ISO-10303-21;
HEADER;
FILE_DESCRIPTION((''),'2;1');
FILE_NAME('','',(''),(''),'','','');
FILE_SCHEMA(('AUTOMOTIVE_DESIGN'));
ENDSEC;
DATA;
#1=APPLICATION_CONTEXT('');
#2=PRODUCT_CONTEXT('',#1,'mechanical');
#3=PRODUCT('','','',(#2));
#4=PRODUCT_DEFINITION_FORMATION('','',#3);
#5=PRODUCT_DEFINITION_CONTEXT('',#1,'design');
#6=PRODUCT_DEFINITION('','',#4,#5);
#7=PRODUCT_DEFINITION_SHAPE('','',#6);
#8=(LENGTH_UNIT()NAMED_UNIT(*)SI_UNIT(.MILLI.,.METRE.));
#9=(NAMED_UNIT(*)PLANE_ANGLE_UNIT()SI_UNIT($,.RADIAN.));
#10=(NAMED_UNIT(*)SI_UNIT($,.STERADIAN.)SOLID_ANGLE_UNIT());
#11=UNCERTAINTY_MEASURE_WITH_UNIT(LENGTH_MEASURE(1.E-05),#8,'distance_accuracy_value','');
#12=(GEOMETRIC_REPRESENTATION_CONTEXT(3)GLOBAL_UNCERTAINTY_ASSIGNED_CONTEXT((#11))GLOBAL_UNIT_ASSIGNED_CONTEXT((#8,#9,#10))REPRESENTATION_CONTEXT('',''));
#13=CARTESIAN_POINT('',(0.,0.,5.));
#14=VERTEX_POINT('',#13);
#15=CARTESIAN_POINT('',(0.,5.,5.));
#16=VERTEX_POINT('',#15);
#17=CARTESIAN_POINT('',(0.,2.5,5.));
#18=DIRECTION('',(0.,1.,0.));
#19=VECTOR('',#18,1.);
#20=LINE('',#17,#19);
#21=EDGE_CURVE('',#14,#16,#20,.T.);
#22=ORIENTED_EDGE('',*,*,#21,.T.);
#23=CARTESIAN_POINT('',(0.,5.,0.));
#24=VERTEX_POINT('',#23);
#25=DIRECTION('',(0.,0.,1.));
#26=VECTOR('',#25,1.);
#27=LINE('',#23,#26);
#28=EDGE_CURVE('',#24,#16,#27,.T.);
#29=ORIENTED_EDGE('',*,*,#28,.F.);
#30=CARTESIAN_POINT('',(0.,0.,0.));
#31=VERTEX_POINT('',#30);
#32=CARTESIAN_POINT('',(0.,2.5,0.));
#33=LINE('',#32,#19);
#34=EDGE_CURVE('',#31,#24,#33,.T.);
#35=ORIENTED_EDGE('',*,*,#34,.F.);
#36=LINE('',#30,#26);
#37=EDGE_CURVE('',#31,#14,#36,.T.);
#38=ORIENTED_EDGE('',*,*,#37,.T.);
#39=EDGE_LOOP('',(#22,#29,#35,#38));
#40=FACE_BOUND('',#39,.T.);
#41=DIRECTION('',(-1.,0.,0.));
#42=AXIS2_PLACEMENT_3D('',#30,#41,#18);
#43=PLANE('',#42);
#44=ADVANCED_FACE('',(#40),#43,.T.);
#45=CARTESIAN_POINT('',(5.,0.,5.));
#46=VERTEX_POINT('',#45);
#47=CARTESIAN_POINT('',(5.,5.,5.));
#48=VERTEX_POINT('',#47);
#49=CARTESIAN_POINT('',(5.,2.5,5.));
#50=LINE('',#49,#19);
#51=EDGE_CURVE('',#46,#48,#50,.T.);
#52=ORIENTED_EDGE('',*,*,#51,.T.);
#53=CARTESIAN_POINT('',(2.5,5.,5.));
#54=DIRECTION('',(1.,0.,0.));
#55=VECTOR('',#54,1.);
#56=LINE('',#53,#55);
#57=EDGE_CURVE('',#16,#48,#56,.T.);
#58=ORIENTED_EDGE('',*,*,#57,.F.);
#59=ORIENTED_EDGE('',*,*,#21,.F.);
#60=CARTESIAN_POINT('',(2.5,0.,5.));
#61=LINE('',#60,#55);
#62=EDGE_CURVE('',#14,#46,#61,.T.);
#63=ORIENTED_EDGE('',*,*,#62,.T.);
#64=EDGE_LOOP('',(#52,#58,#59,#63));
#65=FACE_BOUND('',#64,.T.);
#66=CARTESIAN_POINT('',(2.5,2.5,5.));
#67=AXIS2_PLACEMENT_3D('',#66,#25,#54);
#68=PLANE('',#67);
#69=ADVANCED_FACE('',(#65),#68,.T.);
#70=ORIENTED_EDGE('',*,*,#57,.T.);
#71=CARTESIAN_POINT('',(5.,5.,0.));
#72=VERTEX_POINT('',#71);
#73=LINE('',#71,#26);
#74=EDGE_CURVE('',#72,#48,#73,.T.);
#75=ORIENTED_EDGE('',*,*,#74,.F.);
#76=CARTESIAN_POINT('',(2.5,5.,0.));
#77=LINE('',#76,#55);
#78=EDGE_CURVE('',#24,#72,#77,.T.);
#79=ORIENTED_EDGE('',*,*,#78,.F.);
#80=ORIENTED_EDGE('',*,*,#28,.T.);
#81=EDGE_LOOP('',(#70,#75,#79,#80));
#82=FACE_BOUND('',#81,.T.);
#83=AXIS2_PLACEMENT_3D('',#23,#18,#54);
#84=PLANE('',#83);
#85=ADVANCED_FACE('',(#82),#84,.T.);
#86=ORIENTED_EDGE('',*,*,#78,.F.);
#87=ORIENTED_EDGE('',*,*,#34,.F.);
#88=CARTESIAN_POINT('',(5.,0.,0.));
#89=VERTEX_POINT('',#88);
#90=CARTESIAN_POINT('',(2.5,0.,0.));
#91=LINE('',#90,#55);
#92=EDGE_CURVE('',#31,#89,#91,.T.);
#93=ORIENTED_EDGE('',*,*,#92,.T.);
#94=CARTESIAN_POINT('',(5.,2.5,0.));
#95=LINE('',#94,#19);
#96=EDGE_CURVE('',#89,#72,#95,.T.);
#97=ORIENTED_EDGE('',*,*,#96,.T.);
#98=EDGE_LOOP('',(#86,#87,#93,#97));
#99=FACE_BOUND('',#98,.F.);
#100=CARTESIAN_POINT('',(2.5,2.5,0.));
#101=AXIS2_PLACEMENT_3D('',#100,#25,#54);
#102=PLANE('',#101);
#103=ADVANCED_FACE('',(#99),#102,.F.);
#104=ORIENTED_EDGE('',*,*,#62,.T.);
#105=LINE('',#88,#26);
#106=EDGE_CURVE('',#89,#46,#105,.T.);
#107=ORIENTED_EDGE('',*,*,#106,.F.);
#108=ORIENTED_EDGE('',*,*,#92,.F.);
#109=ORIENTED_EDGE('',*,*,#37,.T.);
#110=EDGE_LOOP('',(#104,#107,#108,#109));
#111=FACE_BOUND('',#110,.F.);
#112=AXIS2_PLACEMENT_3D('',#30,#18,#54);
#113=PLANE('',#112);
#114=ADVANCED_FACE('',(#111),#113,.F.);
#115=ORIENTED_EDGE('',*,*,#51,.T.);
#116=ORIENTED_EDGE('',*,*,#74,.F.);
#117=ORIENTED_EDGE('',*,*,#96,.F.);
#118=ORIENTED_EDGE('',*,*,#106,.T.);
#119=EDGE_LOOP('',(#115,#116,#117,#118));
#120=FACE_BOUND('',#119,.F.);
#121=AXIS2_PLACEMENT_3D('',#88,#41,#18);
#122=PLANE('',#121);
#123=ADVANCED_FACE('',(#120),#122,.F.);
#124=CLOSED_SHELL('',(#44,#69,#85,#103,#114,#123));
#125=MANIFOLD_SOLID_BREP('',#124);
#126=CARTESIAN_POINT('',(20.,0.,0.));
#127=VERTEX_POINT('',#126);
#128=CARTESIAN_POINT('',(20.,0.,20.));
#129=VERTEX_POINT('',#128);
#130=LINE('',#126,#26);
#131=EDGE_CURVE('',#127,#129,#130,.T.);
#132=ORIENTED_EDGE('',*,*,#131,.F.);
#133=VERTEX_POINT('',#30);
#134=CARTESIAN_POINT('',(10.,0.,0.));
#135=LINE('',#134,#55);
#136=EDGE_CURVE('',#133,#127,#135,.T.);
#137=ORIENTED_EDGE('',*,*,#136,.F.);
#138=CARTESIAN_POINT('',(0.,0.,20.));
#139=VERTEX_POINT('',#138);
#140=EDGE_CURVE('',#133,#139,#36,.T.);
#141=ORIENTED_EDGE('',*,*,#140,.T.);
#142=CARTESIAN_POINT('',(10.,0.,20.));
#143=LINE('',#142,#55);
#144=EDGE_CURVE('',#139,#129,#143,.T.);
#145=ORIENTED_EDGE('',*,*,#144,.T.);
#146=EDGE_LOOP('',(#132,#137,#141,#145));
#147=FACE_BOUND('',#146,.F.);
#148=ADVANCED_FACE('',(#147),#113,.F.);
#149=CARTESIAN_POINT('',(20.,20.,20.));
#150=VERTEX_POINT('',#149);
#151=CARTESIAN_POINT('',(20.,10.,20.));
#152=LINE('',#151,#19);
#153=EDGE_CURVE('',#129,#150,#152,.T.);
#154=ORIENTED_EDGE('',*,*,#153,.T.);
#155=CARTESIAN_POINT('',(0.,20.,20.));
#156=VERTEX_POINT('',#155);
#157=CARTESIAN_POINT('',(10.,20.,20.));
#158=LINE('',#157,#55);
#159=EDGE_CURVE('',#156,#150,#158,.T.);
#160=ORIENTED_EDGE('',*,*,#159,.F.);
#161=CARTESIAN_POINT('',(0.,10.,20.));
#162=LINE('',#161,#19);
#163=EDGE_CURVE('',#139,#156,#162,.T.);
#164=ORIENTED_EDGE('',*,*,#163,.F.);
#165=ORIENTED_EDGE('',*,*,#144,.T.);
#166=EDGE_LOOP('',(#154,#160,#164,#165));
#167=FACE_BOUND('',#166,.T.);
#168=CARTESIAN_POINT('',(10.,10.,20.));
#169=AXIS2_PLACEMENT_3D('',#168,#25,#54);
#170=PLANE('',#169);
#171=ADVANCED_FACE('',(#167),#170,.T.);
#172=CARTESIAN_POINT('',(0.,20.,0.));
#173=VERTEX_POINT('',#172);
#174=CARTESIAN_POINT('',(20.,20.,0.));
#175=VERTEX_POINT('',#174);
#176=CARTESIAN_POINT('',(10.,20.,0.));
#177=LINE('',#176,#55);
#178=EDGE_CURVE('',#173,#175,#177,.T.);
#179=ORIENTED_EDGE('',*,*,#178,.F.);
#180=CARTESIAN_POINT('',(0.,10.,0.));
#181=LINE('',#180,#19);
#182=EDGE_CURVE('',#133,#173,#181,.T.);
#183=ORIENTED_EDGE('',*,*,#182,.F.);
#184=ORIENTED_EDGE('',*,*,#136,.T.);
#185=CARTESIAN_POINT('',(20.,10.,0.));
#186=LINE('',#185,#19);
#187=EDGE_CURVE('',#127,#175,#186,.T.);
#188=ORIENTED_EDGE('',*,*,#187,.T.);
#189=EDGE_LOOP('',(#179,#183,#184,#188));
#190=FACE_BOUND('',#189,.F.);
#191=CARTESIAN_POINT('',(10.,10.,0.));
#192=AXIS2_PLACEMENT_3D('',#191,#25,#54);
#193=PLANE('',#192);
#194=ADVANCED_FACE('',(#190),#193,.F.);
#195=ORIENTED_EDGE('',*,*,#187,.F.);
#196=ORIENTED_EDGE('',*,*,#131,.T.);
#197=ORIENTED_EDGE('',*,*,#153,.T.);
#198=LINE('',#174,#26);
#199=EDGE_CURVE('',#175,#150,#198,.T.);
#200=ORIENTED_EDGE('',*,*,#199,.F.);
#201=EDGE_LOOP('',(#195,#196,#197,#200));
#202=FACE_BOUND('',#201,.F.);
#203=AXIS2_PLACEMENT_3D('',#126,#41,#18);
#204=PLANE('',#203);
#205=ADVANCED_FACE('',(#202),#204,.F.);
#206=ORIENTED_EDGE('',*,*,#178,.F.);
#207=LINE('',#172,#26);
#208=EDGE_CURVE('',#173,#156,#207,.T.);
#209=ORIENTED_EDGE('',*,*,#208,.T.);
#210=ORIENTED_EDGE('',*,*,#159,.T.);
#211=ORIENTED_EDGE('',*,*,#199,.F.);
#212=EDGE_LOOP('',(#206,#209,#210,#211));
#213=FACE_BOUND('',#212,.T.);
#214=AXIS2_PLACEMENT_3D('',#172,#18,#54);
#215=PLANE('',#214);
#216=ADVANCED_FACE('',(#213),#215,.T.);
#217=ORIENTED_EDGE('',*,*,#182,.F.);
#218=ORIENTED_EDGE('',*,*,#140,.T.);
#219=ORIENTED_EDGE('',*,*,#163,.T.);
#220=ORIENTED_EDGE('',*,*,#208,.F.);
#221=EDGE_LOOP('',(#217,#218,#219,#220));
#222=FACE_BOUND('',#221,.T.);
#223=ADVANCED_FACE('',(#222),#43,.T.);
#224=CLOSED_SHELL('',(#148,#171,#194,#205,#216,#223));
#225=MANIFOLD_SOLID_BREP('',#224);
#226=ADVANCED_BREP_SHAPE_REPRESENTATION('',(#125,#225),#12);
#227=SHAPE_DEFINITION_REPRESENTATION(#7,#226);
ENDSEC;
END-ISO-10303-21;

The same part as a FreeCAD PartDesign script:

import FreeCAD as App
import Part
import Sketcher

doc = App.newDocument("Part")
body = doc.addObject("PartDesign::Body", "Body")

# Sketch on XY plane
sketch1 = body.newObject("Sketcher::SketchObject", "Sketch")
sketch1.AttachmentSupport = (doc.getObject("XY_Plane"), [""])
sketch1.MapMode = "FlatFace"
sketch1.addGeometry([
    Part.LineSegment(App.Vector(0, 20, 0), App.Vector(0, 0, 0)),
    Part.LineSegment(App.Vector(0, 0, 0), App.Vector(20, 0, 0)),
    Part.LineSegment(App.Vector(20, 0, 0), App.Vector(20, 20, 0)),
    Part.LineSegment(App.Vector(20, 20, 0), App.Vector(0, 20, 0)),
], False)
sketch1.addConstraint([
    Sketcher.Constraint("Coincident", 0, 2, 1, 1),
    Sketcher.Constraint("Coincident", 1, 2, 2, 1),
    Sketcher.Constraint("Coincident", 2, 2, 3, 1),
    Sketcher.Constraint("Coincident", 3, 2, 0, 1),
    Sketcher.Constraint("Vertical", 0),
    Sketcher.Constraint("Horizontal", 1),
    Sketcher.Constraint("Vertical", 2),
    Sketcher.Constraint("Horizontal", 3),
    Sketcher.Constraint("Coincident", 0, 2, -1, 1),
    Sketcher.Constraint("Equal", 3, 0),
    Sketcher.Constraint("DistanceX", 1, 1, 1, 2, 20.0),
])
pad1 = body.newObject("PartDesign::Pad", "Pad")
pad1.Profile = sketch1
pad1.Length = 20
body2 = doc.addObject("PartDesign::Body", "Body001")

# Sketch on XY plane
sketch2 = body2.newObject("Sketcher::SketchObject", "Sketch001")
sketch2.AttachmentSupport = (doc.getObject("XY_Plane001"), [""])
sketch2.MapMode = "FlatFace"
sketch2.addGeometry([
    Part.LineSegment(App.Vector(0, 5, 0), App.Vector(0, 0, 0)),
    Part.LineSegment(App.Vector(0, 0, 0), App.Vector(5, 0, 0)),
    Part.LineSegment(App.Vector(5, 0, 0), App.Vector(5, 5, 0)),
    Part.LineSegment(App.Vector(5, 5, 0), App.Vector(0, 5, 0)),
], False)
sketch2.addConstraint([
    Sketcher.Constraint("Coincident", 0, 2, 1, 1),
    Sketcher.Constraint("Coincident", 1, 2, 2, 1),
    Sketcher.Constraint("Coincident", 2, 2, 3, 1),
    Sketcher.Constraint("Coincident", 3, 2, 0, 1),
    Sketcher.Constraint("Vertical", 0),
    Sketcher.Constraint("Horizontal", 1),
    Sketcher.Constraint("Vertical", 2),
    Sketcher.Constraint("Horizontal", 3),
    Sketcher.Constraint("Coincident", 0, 2, -1, 1),
    Sketcher.Constraint("Equal", 3, 0),
    Sketcher.Constraint("DistanceX", 1, 1, 1, 2, 5.0),
])
pad2 = body2.newObject("PartDesign::Pad", "Pad001")
pad2.Profile = sketch2
pad2.Length = 5

doc.recompute()
